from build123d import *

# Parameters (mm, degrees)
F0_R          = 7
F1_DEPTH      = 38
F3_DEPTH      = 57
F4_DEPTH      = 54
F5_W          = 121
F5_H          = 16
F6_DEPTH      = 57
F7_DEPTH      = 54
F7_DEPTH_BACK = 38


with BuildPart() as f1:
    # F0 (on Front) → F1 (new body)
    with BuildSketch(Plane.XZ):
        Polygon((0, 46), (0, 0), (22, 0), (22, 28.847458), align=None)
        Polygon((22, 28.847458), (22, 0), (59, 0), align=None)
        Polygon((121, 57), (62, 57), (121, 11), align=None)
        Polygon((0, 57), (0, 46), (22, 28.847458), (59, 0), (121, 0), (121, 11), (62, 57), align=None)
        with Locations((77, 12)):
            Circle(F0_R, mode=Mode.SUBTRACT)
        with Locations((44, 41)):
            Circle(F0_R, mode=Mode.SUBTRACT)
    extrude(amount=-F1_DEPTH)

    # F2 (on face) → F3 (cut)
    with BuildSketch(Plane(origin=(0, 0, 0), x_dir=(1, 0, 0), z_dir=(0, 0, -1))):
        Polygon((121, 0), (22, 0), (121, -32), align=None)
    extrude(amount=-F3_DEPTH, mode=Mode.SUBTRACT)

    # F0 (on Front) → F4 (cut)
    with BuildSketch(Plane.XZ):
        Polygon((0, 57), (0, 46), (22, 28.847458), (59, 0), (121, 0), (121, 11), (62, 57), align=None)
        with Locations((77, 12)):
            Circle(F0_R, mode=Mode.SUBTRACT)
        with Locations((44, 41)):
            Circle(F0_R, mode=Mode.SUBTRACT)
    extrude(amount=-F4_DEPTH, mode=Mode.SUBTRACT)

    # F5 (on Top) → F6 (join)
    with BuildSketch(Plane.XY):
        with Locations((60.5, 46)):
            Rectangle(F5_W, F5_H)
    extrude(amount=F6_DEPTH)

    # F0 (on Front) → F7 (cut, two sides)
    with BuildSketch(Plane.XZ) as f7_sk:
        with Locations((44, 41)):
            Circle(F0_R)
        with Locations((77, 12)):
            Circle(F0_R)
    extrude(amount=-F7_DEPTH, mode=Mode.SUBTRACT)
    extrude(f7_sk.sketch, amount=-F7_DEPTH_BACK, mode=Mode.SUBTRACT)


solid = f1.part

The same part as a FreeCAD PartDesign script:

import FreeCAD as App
import Part
import Sketcher

V = App.Vector

doc = App.newDocument("Part")
body = doc.addObject("PartDesign::Body", "Body")
body.AllowCompound = True

sketch1 = doc.addObject("Sketcher::SketchObject", "Sketch")
body.addObject(sketch1)
sketch1.AttachmentSupport = (doc.XZ_Plane, [""])
sketch1.MapMode = "FlatFace"
sketch1.addGeometry(Part.LineSegment(V(0, 0, 0), V(121, 0, 0)), False)
sketch1.addGeometry(Part.LineSegment(V(121, 0, 0), V(121, 57, 0)), False)
sketch1.addGeometry(Part.LineSegment(V(121, 57, 0), V(0, 57, 0)), False)
sketch1.addGeometry(Part.LineSegment(V(0, 57, 0), V(0, 0, 0)), False)
sketch1.addGeometry(Part.Circle(V(77, 12, 0), V(0, 0, 1), 7), False)
sketch1.addGeometry(Part.Circle(V(44, 41, 0), V(0, 0, 1), 7), False)
sketch1.addConstraint(Sketcher.Constraint("Coincident", 0, 2, 1, 1))
sketch1.addConstraint(Sketcher.Constraint("Coincident", 1, 2, 2, 1))
sketch1.addConstraint(Sketcher.Constraint("Coincident", 2, 2, 3, 1))
sketch1.addConstraint(Sketcher.Constraint("Coincident", 3, 2, 0, 1))
sketch1.addConstraint(Sketcher.Constraint("Horizontal", 0))
sketch1.addConstraint(Sketcher.Constraint("Vertical", 1))
sketch1.addConstraint(Sketcher.Constraint("Horizontal", 2))
sketch1.addConstraint(Sketcher.Constraint("Vertical", 3))
sketch1.addConstraint(Sketcher.Constraint("Coincident", 3, 2, -1, 1))
sketch1.addConstraint(Sketcher.Constraint("Equal", 4, 5))
sketch1.addConstraint(Sketcher.Constraint("Diameter", 4, 14.0))
sketch1.addConstraint(Sketcher.Constraint("DistanceX", 0, 1, 0, 2, 121.0))
sketch1.addConstraint(Sketcher.Constraint("DistanceY", 1, 1, 1, 2, 57.0))
sketch1.addConstraint(Sketcher.Constraint("DistanceX", -1, 1, 4, 3, 77.0))
sketch1.addConstraint(Sketcher.Constraint("DistanceY", -1, 1, 4, 3, 12.0))
sketch1.addConstraint(Sketcher.Constraint("DistanceX", -1, 1, 5, 3, 44.0))
sketch1.addConstraint(Sketcher.Constraint("DistanceY", -1, 1, 5, 3, 41.0))
pad1 = doc.addObject("PartDesign::Pad", "Pad")
body.addObject(pad1)
pad1.Profile = sketch1
pad1.Length = 38
pad1.Reversed = True

sketch2 = doc.addObject("Sketcher::SketchObject", "Sketch001")
body.addObject(sketch2)
sketch2.AttachmentSupport = (doc.XY_Plane, [""])
sketch2.MapMode = "FlatFace"
sketch2.addGeometry(Part.LineSegment(V(121, 0, 0), V(22, 0, 0)), False)
sketch2.addGeometry(Part.LineSegment(V(22, 0, 0), V(121, 32, 0)), False)
sketch2.addGeometry(Part.LineSegment(V(121, 32, 0), V(121, 0, 0)), False)
sketch2.addConstraint(Sketcher.Constraint("Coincident", 0, 2, 1, 1))
sketch2.addConstraint(Sketcher.Constraint("Coincident", 1, 2, 2, 1))
sketch2.addConstraint(Sketcher.Constraint("Coincident", 2, 2, 0, 1))
sketch2.addConstraint(Sketcher.Constraint("Horizontal", 0))
sketch2.addConstraint(Sketcher.Constraint("Vertical", 2))
sketch2.addConstraint(Sketcher.Constraint("PointOnObject", 0, 2, -1))
sketch2.addConstraint(Sketcher.Constraint("DistanceX", 0, 2, 0, 1, 99.0))
sketch2.addConstraint(Sketcher.Constraint("DistanceY", 2, 2, 2, 1, 32.0))
sketch2.addConstraint(Sketcher.Constraint("DistanceX", -1, 1, 0, 2, 22.0))
pocket1 = doc.addObject("PartDesign::Pocket", "Pocket")
body.addObject(pocket1)
pocket1.Profile = sketch2
pocket1.Length = 57
pocket1.Reversed = True

sketch3 = doc.addObject("Sketcher::SketchObject", "Sketch002")
body.addObject(sketch3)
sketch3.AttachmentSupport = (doc.XZ_Plane, [""])
sketch3.MapMode = "FlatFace"
sketch3.addGeometry(Part.LineSegment(V(0, 57, 0), V(0, 46, 0)), False)
sketch3.addGeometry(Part.LineSegment(V(0, 46, 0), V(22, 29, 0)), False)
sketch3.addGeometry(Part.LineSegment(V(22, 29, 0), V(59, 0, 0)), False)
sketch3.addGeometry(Part.LineSegment(V(59, 0, 0), V(121, 0, 0)), False)
sketch3.addGeometry(Part.LineSegment(V(121, 0, 0), V(121, 11, 0)), False)
sketch3.addGeometry(Part.LineSegment(V(121, 11, 0), V(62, 57, 0)), False)
sketch3.addGeometry(Part.LineSegment(V(62, 57, 0), V(0, 57, 0)), False)
sketch3.addGeometry(Part.Circle(V(77, 12, 0), V(0, 0, 1), 7), False)
sketch3.addGeometry(Part.Circle(V(44, 41, 0), V(0, 0, 1), 7), False)
sketch3.addConstraint(Sketcher.Constraint("Coincident", 0, 2, 1, 1))
sketch3.addConstraint(Sketcher.Constraint("Coincident", 1, 2, 2, 1))
sketch3.addConstraint(Sketcher.Constraint("Coincident", 2, 2, 3, 1))
sketch3.addConstraint(Sketcher.Constraint("Coincident", 3, 2, 4, 1))
sketch3.addConstraint(Sketcher.Constraint("Coincident", 4, 2, 5, 1))
sketch3.addConstraint(Sketcher.Constraint("Coincident", 5, 2, 6, 1))
sketch3.addConstraint(Sketcher.Constraint("Coincident", 6, 2, 0, 1))
sketch3.addConstraint(Sketcher.Constraint("Vertical", 0))
sketch3.addConstraint(Sketcher.Constraint("Horizontal", 3))
sketch3.addConstraint(Sketcher.Constraint("Vertical", 4))
sketch3.addConstraint(Sketcher.Constraint("Horizontal", 6))
sketch3.addConstraint(Sketcher.Constraint("Equal", 7, 8))
sketch3.addConstraint(Sketcher.Constraint("PointOnObject", 0, 2, -2))
sketch3.addConstraint(Sketcher.Constraint("PointOnObject", 2, 2, -1))
sketch3.addConstraint(Sketcher.Constraint("Parallel", 1, 2))
sketch3.addConstraint(Sketcher.Constraint("Parallel", 2, 5))
sketch3.addConstraint(Sketcher.Constraint("Equal", 3, 6))
sketch3.addConstraint(Sketcher.Constraint("Diameter", 7, 14.0))
sketch3.addConstraint(Sketcher.Constraint("DistanceX", 3, 1, 3, 2, 62.0))
sketch3.addConstraint(Sketcher.Constraint("DistanceY", 0, 2, 0, 1, 11.0))
sketch3.addConstraint(Sketcher.Constraint("DistanceX", -1, 1, 7, 3, 77.0))
sketch3.addConstraint(Sketcher.Constraint("DistanceY", -1, 1, 7, 3, 12.0))
sketch3.addConstraint(Sketcher.Constraint("DistanceX", -1, 1, 8, 3, 44.0))
sketch3.addConstraint(Sketcher.Constraint("DistanceY", -1, 1, 8, 3, 41.0))
sketch3.addConstraint(Sketcher.Constraint("DistanceY", -1, 1, 0, 2, 46.0))
sketch3.addConstraint(Sketcher.Constraint("DistanceX", -1, 1, 1, 2, 22.0))
sketch3.addConstraint(Sketcher.Constraint("DistanceX", -1, 1, 2, 2, 59.0))
pocket2 = doc.addObject("PartDesign::Pocket", "Pocket001")
body.addObject(pocket2)
pocket2.Profile = sketch3
pocket2.Length = 54

sketch4 = doc.addObject("Sketcher::SketchObject", "Sketch003")
body.addObject(sketch4)
sketch4.AttachmentSupport = (doc.XY_Plane, [""])
sketch4.MapMode = "FlatFace"
sketch4.addGeometry(Part.LineSegment(V(0, 54, 0), V(0, 38, 0)), False)
sketch4.addGeometry(Part.LineSegment(V(0, 38, 0), V(121, 38, 0)), False)
sketch4.addGeometry(Part.LineSegment(V(121, 38, 0), V(121, 54, 0)), False)
sketch4.addGeometry(Part.LineSegment(V(121, 54, 0), V(0, 54, 0)), False)
sketch4.addConstraint(Sketcher.Constraint("Coincident", 0, 2, 1, 1))
sketch4.addConstraint(Sketcher.Constraint("Coincident", 1, 2, 2, 1))
sketch4.addConstraint(Sketcher.Constraint("Coincident", 2, 2, 3, 1))
sketch4.addConstraint(Sketcher.Constraint("Coincident", 3, 2, 0, 1))
sketch4.addConstraint(Sketcher.Constraint("Vertical", 0))
sketch4.addConstraint(Sketcher.Constraint("Horizontal", 1))
sketch4.addConstraint(Sketcher.Constraint("Vertical", 2))
sketch4.addConstraint(Sketcher.Constraint("Horizontal", 3))
sketch4.addConstraint(Sketcher.Constraint("PointOnObject", 0, 2, -2))
sketch4.addConstraint(Sketcher.Constraint("DistanceX", 1, 1, 1, 2, 121.0))
sketch4.addConstraint(Sketcher.Constraint("DistanceY", 0, 2, 0, 1, 16.0))
sketch4.addConstraint(Sketcher.Constraint("DistanceY", -1, 1, 0, 2, 38.0))
pad2 = doc.addObject("PartDesign::Pad", "Pad001")
body.addObject(pad2)
pad2.Profile = sketch4
pad2.Length = 57

sketch5 = doc.addObject("Sketcher::SketchObject", "Sketch004")
body.addObject(sketch5)
sketch5.AttachmentSupport = (doc.XZ_Plane, [""])
sketch5.MapMode = "FlatFace"
sketch5.addGeometry(Part.Circle(V(44, 41, 0), V(0, 0, 1), 7), False)
sketch5.addGeometry(Part.Circle(V(77, 12, 0), V(0, 0, 1), 7), False)
sketch5.addConstraint(Sketcher.Constraint("Equal", 0, 1))
sketch5.addConstraint(Sketcher.Constraint("Diameter", 0, 14.0))
sketch5.addConstraint(Sketcher.Constraint("DistanceX", -1, 1, 0, 3, 44.0))
sketch5.addConstraint(Sketcher.Constraint("DistanceY", -1, 1, 0, 3, 41.0))
sketch5.addConstraint(Sketcher.Constraint("DistanceX", -1, 1, 1, 3, 77.0))
sketch5.addConstraint(Sketcher.Constraint("DistanceY", -1, 1, 1, 3, 12.0))
pocket3 = doc.addObject("PartDesign::Pocket", "Pocket002")
body.addObject(pocket3)
pocket3.Profile = sketch5
pocket3.Length = 54
pocket4 = doc.addObject("PartDesign::Pocket", "Pocket003")
body.addObject(pocket4)
pocket4.Profile = sketch5
pocket4.Length = 38

doc.recompute()
